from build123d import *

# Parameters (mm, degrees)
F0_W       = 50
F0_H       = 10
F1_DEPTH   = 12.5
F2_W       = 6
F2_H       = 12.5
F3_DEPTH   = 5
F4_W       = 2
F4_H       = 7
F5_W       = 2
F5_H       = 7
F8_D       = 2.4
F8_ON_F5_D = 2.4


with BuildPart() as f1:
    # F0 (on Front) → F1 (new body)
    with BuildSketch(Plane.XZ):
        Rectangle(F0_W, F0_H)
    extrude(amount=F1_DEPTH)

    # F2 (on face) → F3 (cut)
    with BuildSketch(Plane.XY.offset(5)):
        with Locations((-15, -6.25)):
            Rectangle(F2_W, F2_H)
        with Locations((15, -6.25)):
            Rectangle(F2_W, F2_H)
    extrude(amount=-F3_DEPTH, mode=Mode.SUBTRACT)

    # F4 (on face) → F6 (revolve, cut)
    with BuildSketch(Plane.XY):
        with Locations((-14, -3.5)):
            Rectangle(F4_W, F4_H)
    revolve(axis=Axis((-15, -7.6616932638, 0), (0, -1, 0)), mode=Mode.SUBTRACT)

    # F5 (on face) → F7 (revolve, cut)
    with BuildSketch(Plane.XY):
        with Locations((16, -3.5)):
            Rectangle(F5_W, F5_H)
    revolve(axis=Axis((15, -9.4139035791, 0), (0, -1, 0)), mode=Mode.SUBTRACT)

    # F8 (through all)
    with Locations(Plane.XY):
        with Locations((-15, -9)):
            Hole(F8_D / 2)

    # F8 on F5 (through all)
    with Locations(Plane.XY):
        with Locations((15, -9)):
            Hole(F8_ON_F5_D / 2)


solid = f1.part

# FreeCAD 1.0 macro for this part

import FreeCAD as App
import Part
import Sketcher
from FreeCAD import Vector


def add_polygon(sketch, points):
    """Adds a closed chain of lines whose ends are joined by coincident constraints."""
    first, n = sketch.GeometryCount, len(points)
    for a, b in zip(points, points[1:] + points[:1]):
        sketch.addGeometry(Part.LineSegment(App.Vector(*a, 0), App.Vector(*b, 0)), False)
    for i in range(n):
        sketch.addConstraint(Sketcher.Constraint("Coincident", first + i, 2, first + (i + 1) % n, 1))

doc = App.newDocument("Part")
body = doc.addObject("PartDesign::Body", "Body")

# Sketch on XZ plane
sketch1 = body.newObject("Sketcher::SketchObject", "Sketch")
sketch1.AttachmentSupport = (doc.getObject("XZ_Plane"), [""])
sketch1.MapMode = "FlatFace"
add_polygon(sketch1, [(-25, 5), (-25, -5), (25, -5), (25, 5)])  # lines 0-3
sketch1.addConstraint(Sketcher.Constraint("Vertical", 0))
sketch1.addConstraint(Sketcher.Constraint("Horizontal", 1))
sketch1.addConstraint(Sketcher.Constraint("Vertical", 2))
sketch1.addConstraint(Sketcher.Constraint("Horizontal", 3))
sketch1.addConstraint(Sketcher.Constraint("Symmetric", 0, 2, 2, 2, -1, 1))
sketch1.addConstraint(Sketcher.Constraint("DistanceX", 1, 1, 1, 2, 50.0))
sketch1.addConstraint(Sketcher.Constraint("DistanceY", 0, 2, 0, 1, 10.0))
pad1 = body.newObject("PartDesign::Pad", "Pad")
pad1.Profile = sketch1
pad1.Length = 12.5

# Sketch on XY plane
sketch2 = body.newObject("Sketcher::SketchObject", "Sketch001")
sketch2.AttachmentSupport = (doc.getObject("XY_Plane"), [""])
sketch2.MapMode = "FlatFace"
sketch2.AttachmentOffset = App.Placement(Vector(0, 0, 5), App.Rotation())
add_polygon(sketch2, [(-18, 0), (-18, -12), (-12, -12), (-12, 0)])  # lines 0-3
add_polygon(sketch2, [(12, 0), (12, -12), (18, -12), (18, 0)])  # lines 4-7
sketch2.addConstraint(Sketcher.Constraint("Vertical", 0))
sketch2.addConstraint(Sketcher.Constraint("Horizontal", 1))
sketch2.addConstraint(Sketcher.Constraint("Vertical", 2))
sketch2.addConstraint(Sketcher.Constraint("Horizontal", 3))
sketch2.addConstraint(Sketcher.Constraint("Vertical", 4))
sketch2.addConstraint(Sketcher.Constraint("Horizontal", 5))
sketch2.addConstraint(Sketcher.Constraint("Vertical", 6))
sketch2.addConstraint(Sketcher.Constraint("Horizontal", 7))
sketch2.addConstraint(Sketcher.Constraint("Symmetric", 3, 2, 6, 2, -1, 1))
sketch2.addConstraint(Sketcher.Constraint("Symmetric", 1, 2, 4, 2, -2))
sketch2.addConstraint(Sketcher.Constraint("PointOnObject", 2, 2, -1))
sketch2.addConstraint(Sketcher.Constraint("DistanceX", 1, 1, 1, 2, 6.0))
sketch2.addConstraint(Sketcher.Constraint("DistanceY", 0, 2, 0, 1, 12.5))
sketch2.addConstraint(Sketcher.Constraint("DistanceX", 0, 2, -1, 1, 18.0))
pocket1 = body.newObject("PartDesign::Pocket", "Pocket")
pocket1.Profile = sketch2
pocket1.Length = 5

# Sketch on XY plane
sketch3 = body.newObject("Sketcher::SketchObject", "Sketch002")
sketch3.AttachmentSupport = (doc.getObject("XY_Plane"), [""])
sketch3.MapMode = "FlatFace"
add_polygon(sketch3, [(-15, 0), (-15, -7), (-13, -7), (-13, 0)])  # lines 0-3
sketch3.addGeometry(Part.LineSegment(Vector(-15, 0, 0), Vector(-15, -7, 0)), True)  # axis
sketch3.addConstraint(Sketcher.Constraint("Vertical", 0))
sketch3.addConstraint(Sketcher.Constraint("Horizontal", 1))
sketch3.addConstraint(Sketcher.Constraint("Vertical", 2))
sketch3.addConstraint(Sketcher.Constraint("Horizontal", 3))
sketch3.addConstraint(Sketcher.Constraint("Vertical", 4))
sketch3.addConstraint(Sketcher.Constraint("Coincident", 4, 1, 3, 2))
sketch3.addConstraint(Sketcher.Constraint("PointOnObject", 2, 2, -1))
sketch3.addConstraint(Sketcher.Constraint("Horizontal", 1, 2, 4, 2))
sketch3.addConstraint(Sketcher.Constraint("DistanceX", 1, 1, 1, 2, 2.0))
sketch3.addConstraint(Sketcher.Constraint("DistanceY", 0, 2, 0, 1, 7.0))
sketch3.addConstraint(Sketcher.Constraint("DistanceX", 0, 2, -1, 1, 15.0))
groove = body.newObject("PartDesign::Groove", "Groove")
groove.Profile = sketch3
groove.ReferenceAxis = (sketch3, ["Axis0"])
groove.Angle = 360

# Sketch on XY plane
sketch4 = body.newObject("Sketcher::SketchObject", "Sketch003")
sketch4.AttachmentSupport = (doc.getObject("XY_Plane"), [""])
sketch4.MapMode = "FlatFace"
add_polygon(sketch4, [(15, 0), (15, -7), (17, -7), (17, 0)])  # lines 0-3
sketch4.addGeometry(Part.LineSegment(Vector(15, 0, 0), Vector(15, -7, 0)), True)  # axis
sketch4.addConstraint(Sketcher.Constraint("Vertical", 0))
sketch4.addConstraint(Sketcher.Constraint("Horizontal", 1))
sketch4.addConstraint(Sketcher.Constraint("Vertical", 2))
sketch4.addConstraint(Sketcher.Constraint("Horizontal", 3))
sketch4.addConstraint(Sketcher.Constraint("Vertical", 4))
sketch4.addConstraint(Sketcher.Constraint("Coincident", 4, 1, 3, 2))
sketch4.addConstraint(Sketcher.Constraint("PointOnObject", 2, 2, -1))
sketch4.addConstraint(Sketcher.Constraint("Horizontal", 1, 2, 4, 2))
sketch4.addConstraint(Sketcher.Constraint("DistanceX", 1, 1, 1, 2, 2.0))
sketch4.addConstraint(Sketcher.Constraint("DistanceY", 0, 2, 0, 1, 7.0))
sketch4.addConstraint(Sketcher.Constraint("DistanceX", -1, 1, 0, 2, 15.0))
groove2 = body.newObject("PartDesign::Groove", "Groove001")
groove2.Profile = sketch4
groove2.ReferenceAxis = (sketch4, ["Axis0"])
groove2.Angle = 360

# Sketch on XY plane
sketch5 = body.newObject("Sketcher::SketchObject", "Sketch004")
sketch5.AttachmentSupport = (doc.getObject("XY_Plane"), [""])
sketch5.MapMode = "FlatFace"
sketch5.addGeometry(Part.Circle(Vector(-15, -9, 0), Vector(0, 0, 1), 1.2), False)
sketch5.addConstraint(Sketcher.Constraint("Diameter", 0, 2.4))
sketch5.addConstraint(Sketcher.Constraint("DistanceX", 0, 3, -1, 1, 15.0))
sketch5.addConstraint(Sketcher.Constraint("DistanceY", 0, 3, -1, 1, 9.0))
doc.recompute()
hole = body.newObject("PartDesign::Hole", "Hole")
hole.Profile = sketch5
hole.ThreadType = "None"
hole.Diameter = 2.4
hole.DepthType = "ThroughAll"

# Sketch on XY plane
sketch6 = body.newObject("Sketcher::SketchObject", "Sketch005")
sketch6.AttachmentSupport = (doc.getObject("XY_Plane"), [""])
sketch6.MapMode = "FlatFace"
sketch6.addGeometry(Part.Circle(Vector(15, -9, 0), Vector(0, 0, 1), 1.2), False)
sketch6.addConstraint(Sketcher.Constraint("Diameter", 0, 2.4))
sketch6.addConstraint(Sketcher.Constraint("DistanceX", -1, 1, 0, 3, 15.0))
sketch6.addConstraint(Sketcher.Constraint("DistanceY", 0, 3, -1, 1, 9.0))
doc.recompute()
hole2 = body.newObject("PartDesign::Hole", "Hole001")
hole2.Profile = sketch6
hole2.ThreadType = "None"
hole2.Diameter = 2.4
hole2.DepthType = "ThroughAll"

doc.recompute()
